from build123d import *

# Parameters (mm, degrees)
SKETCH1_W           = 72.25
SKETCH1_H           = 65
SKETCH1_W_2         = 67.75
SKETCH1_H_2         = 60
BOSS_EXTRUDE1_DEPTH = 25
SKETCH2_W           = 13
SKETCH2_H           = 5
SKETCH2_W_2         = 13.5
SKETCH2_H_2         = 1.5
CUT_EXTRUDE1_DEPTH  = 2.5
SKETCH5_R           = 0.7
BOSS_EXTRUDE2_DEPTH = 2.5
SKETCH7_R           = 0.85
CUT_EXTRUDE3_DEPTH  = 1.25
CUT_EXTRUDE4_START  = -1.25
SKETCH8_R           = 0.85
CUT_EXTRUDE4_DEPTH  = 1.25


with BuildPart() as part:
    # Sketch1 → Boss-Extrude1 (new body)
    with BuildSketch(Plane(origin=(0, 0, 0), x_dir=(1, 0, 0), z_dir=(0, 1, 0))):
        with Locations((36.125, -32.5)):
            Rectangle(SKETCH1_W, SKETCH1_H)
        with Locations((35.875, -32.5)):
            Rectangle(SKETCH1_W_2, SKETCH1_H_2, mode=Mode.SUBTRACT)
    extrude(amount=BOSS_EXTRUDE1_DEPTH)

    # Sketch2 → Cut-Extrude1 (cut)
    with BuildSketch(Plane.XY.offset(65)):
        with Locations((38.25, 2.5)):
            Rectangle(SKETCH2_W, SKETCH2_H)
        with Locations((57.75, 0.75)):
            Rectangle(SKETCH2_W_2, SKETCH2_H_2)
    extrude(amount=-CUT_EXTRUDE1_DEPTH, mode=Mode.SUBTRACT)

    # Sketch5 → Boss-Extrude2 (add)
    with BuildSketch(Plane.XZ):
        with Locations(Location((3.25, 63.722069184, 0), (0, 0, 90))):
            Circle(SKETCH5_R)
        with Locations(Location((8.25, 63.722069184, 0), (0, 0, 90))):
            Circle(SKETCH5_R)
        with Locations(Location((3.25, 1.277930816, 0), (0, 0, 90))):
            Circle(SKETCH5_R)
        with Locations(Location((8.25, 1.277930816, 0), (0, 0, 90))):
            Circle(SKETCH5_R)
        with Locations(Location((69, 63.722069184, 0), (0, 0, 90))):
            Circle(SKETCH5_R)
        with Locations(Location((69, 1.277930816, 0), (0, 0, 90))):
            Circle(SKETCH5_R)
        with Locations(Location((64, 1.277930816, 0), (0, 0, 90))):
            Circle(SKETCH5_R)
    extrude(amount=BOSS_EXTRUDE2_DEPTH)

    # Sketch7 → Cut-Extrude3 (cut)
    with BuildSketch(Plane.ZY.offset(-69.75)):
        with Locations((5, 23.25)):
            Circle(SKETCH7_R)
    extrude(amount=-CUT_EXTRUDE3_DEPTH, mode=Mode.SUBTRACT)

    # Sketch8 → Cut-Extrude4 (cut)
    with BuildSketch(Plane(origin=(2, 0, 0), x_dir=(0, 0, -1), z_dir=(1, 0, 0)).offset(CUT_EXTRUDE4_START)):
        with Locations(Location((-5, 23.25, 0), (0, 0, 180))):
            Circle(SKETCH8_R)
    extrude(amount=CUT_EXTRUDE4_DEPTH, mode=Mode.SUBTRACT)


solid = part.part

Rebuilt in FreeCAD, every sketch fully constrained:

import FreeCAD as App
import Part
import Sketcher
Q = App.Units.Quantity


def add_polygon(sketch, points):
    """Adds a closed chain of lines whose ends are joined by coincident constraints."""
    first, n = sketch.GeometryCount, len(points)
    for a, b in zip(points, points[1:] + points[:1]):
        sketch.addGeometry(Part.LineSegment(App.Vector(*a, 0), App.Vector(*b, 0)), False)
    for i in range(n):
        sketch.addConstraint(Sketcher.Constraint("Coincident", first + i, 2, first + (i + 1) % n, 1))

doc = App.newDocument("Part")
params = doc.addObject("Spreadsheet::Sheet", "Params")
for row, (alias, value) in enumerate([
    ("sketch1_height", "65 mm"),
    ("sketch1_height2", "60 mm"),
    ("sketch1_width", "72.25 mm"),
    ("sketch1_width2", "67.75 mm"),
    ("pad1_length", "25 mm"),
    ("sketch2_width", "13 mm"),
    ("sketch2_height", "5 mm"),
    ("sketch2_width2", "13.5 mm"),
    ("sketch2_height2", "1.5 mm"),
    ("pocket1_length", "2.5 mm"),
    ("sketch3_diameter", "1.4 mm"),
    ("pad2_length", "2.5 mm"),
    ("sketch4_diameter", "1.7 mm"),
    ("pocket2_length", "1.25 mm"),
    ("sketch5_diameter", "1.7 mm"),
    ("pocket3_length", "1.25 mm"),
], start=1):
    params.set(f"A{row}", alias)
    params.set(f"B{row}", "=" + value)
    params.setAlias(f"B{row}", alias)

body = doc.addObject("PartDesign::Body", "Body")

sketch1 = doc.addObject("Sketcher::SketchObject", "Sketch")
body.addObject(sketch1)
sketch1.AttachmentSupport = (doc.XZ_Plane, [""])
sketch1.MapMode = "FlatFace"
add_polygon(sketch1, [(0, 0), (0, 65), (72, 65), (72, 0)])
add_polygon(sketch1, [(70, 62), (2, 62), (2, 2), (70, 2)])
sketch1.addConstraint(Sketcher.Constraint("Vertical", 0))
sketch1.addConstraint(Sketcher.Constraint("Horizontal", 1))
sketch1.addConstraint(Sketcher.Constraint("Vertical", 2))
sketch1.addConstraint(Sketcher.Constraint("Horizontal", 3))
sketch1.addConstraint(Sketcher.Constraint("Horizontal", 4))
sketch1.addConstraint(Sketcher.Constraint("Vertical", 5))
sketch1.addConstraint(Sketcher.Constraint("Horizontal", 6))
sketch1.addConstraint(Sketcher.Constraint("Vertical", 7))
sketch1.addConstraint(Sketcher.Constraint("Coincident", 3, 2, -1, 1))
sketch1.addConstraint(Sketcher.Constraint("DistanceY", 0, 1, 0, 2, Q("65 mm")))
sketch1.addConstraint(Sketcher.Constraint("DistanceY", 5, 2, 5, 1, Q("60 mm")))
sketch1.addConstraint(Sketcher.Constraint("DistanceX", -1, 1, 4, 2, Q("2 mm")))
sketch1.addConstraint(Sketcher.Constraint("DistanceX", 1, 1, 1, 2, Q("72.25 mm")))
sketch1.addConstraint(Sketcher.Constraint("DistanceX", 4, 2, 4, 1, Q("67.75 mm")))
sketch1.addConstraint(Sketcher.Constraint("DistanceY", -1, 1, 4, 2, Q("62.5 mm")))
sketch1.setExpression("Constraints[17]", "Params.sketch1_height")
sketch1.setExpression("Constraints[18]", "Params.sketch1_height2")
sketch1.setExpression("Constraints[20]", "Params.sketch1_width")
sketch1.setExpression("Constraints[21]", "Params.sketch1_width2")
pad1 = doc.addObject("PartDesign::Pad", "Pad")
body.addObject(pad1)
pad1.Profile = sketch1
pad1.setExpression("Length", "Params.pad1_length")
pad1.Reversed = True

sketch2 = doc.addObject("Sketcher::SketchObject", "Sketch001")
body.addObject(sketch2)
sketch2.AttachmentSupport = (doc.XY_Plane, [""])
sketch2.MapMode = "FlatFace"
sketch2.AttachmentOffset = App.Placement(App.Vector(0, 0, 65), App.Rotation())
add_polygon(sketch2, [(31.8, 5), (31.8, 0), (44.8, 0), (44.8, 5)])
add_polygon(sketch2, [(51, 1.5), (51, 0), (64.5, 0), (64.5, 1.5)])
sketch2.addConstraint(Sketcher.Constraint("Vertical", 0))
sketch2.addConstraint(Sketcher.Constraint("Horizontal", 1))
sketch2.addConstraint(Sketcher.Constraint("Vertical", 2))
sketch2.addConstraint(Sketcher.Constraint("Horizontal", 3))
sketch2.addConstraint(Sketcher.Constraint("Vertical", 4))
sketch2.addConstraint(Sketcher.Constraint("Horizontal", 5))
sketch2.addConstraint(Sketcher.Constraint("Vertical", 6))
sketch2.addConstraint(Sketcher.Constraint("Horizontal", 7))
sketch2.addConstraint(Sketcher.Constraint("PointOnObject", 0, 2, -1))
sketch2.addConstraint(Sketcher.Constraint("PointOnObject", 4, 2, -1))
sketch2.addConstraint(Sketcher.Constraint("DistanceX", 1, 1, 1, 2, Q("13 mm")))
sketch2.addConstraint(Sketcher.Constraint("DistanceY", 0, 2, 0, 1, Q("5 mm")))
sketch2.addConstraint(Sketcher.Constraint("DistanceX", 5, 1, 5, 2, Q("13.5 mm")))
sketch2.addConstraint(Sketcher.Constraint("DistanceY", 4, 2, 4, 1, Q("1.5 mm")))
sketch2.addConstraint(Sketcher.Constraint("DistanceX", -1, 1, 4, 2, Q("51 mm")))
sketch2.addConstraint(Sketcher.Constraint("DistanceX", -1, 1, 0, 2, Q("31.75 mm")))
sketch2.setExpression("Constraints[18]", "Params.sketch2_width")
sketch2.setExpression("Constraints[19]", "Params.sketch2_height")
sketch2.setExpression("Constraints[20]", "Params.sketch2_width2")
sketch2.setExpression("Constraints[21]", "Params.sketch2_height2")
pocket1 = doc.addObject("PartDesign::Pocket", "Pocket")
body.addObject(pocket1)
pocket1.Profile = sketch2
pocket1.setExpression("Length", "Params.pocket1_length")

sketch3 = doc.addObject("Sketcher::SketchObject", "Sketch002")
body.addObject(sketch3)
sketch3.AttachmentSupport = (doc.XZ_Plane, [""])
sketch3.MapMode = "FlatFace"
sketch3.addGeometry(Part.Circle(App.Vector(3.2, 63.7, 0), App.Vector(0, 0, 1), 0.7), False)
sketch3.addGeometry(Part.Circle(App.Vector(8.2, 63.7, 0), App.Vector(0, 0, 1), 0.7), False)
sketch3.addGeometry(Part.Circle(App.Vector(3.2, 1.3, 0), App.Vector(0, 0, 1), 0.7), False)
sketch3.addGeometry(Part.Circle(App.Vector(8.2, 1.3, 0), App.Vector(0, 0, 1), 0.7), False)
sketch3.addGeometry(Part.Circle(App.Vector(69, 63.7, 0), App.Vector(0, 0, 1), 0.7), False)
sketch3.addGeometry(Part.Circle(App.Vector(69, 1.3, 0), App.Vector(0, 0, 1), 0.7), False)
sketch3.addGeometry(Part.Circle(App.Vector(64, 1.3, 0), App.Vector(0, 0, 1), 0.7), False)
sketch3.addConstraint(Sketcher.Constraint("Equal", 0, 1))
sketch3.addConstraint(Sketcher.Constraint("Equal", 1, 2))
sketch3.addConstraint(Sketcher.Constraint("Equal", 2, 3))
sketch3.addConstraint(Sketcher.Constraint("Equal", 3, 4))
sketch3.addConstraint(Sketcher.Constraint("Equal", 4, 5))
sketch3.addConstraint(Sketcher.Constraint("Equal", 5, 6))
sketch3.addConstraint(Sketcher.Constraint("Horizontal", 0, 3, 1, 3))
sketch3.addConstraint(Sketcher.Constraint("Horizontal", 2, 3, 3, 3))
sketch3.addConstraint(Sketcher.Constraint("Horizontal", 1, 3, 4, 3))
sketch3.addConstraint(Sketcher.Constraint("Horizontal", 3, 3, 5, 3))
sketch3.addConstraint(Sketcher.Constraint("Horizontal", 5, 3, 6, 3))
sketch3.addConstraint(Sketcher.Constraint("Vertical", 0, 3, 2, 3))
sketch3.addConstraint(Sketcher.Constraint("Vertical", 1, 3, 3, 3))
sketch3.addConstraint(Sketcher.Constraint("Vertical", 4, 3, 5, 3))
sketch3.addConstraint(Sketcher.Constraint("Diameter", 0, Q("1.4 mm")))
sketch3.addConstraint(Sketcher.Constraint("DistanceX", -1, 1, 4, 3, Q("69 mm")))
sketch3.addConstraint(Sketcher.Constraint("DistanceX", -1, 1, 6, 3, Q("64 mm")))
sketch3.addConstraint(Sketcher.Constraint("DistanceX", 0, 3, 1, 3, Q("5 mm")))
sketch3.addConstraint(Sketcher.Constraint("DistanceX", -1, 1, 0, 3, Q("3.25 mm")))
sketch3.addConstraint(Sketcher.Constraint("DistanceY", -1, 1, 0, 3, Q("63.722069 mm")))
sketch3.addConstraint(Sketcher.Constraint("DistanceY", -1, 1, 2, 3, Q("1.277931 mm")))
sketch3.setExpression("Constraints[14]", "Params.sketch3_diameter")
pad2 = doc.addObject("PartDesign::Pad", "Pad001")
body.addObject(pad2)
pad2.Profile = sketch3
pad2.setExpression("Length", "Params.pad2_length")

sketch4 = doc.addObject("Sketcher::SketchObject", "Sketch003")
body.addObject(sketch4)
sketch4.AttachmentSupport = (doc.YZ_Plane, [""])
sketch4.MapMode = "FlatFace"
sketch4.AttachmentOffset = App.Placement(App.Vector(0, 0, 69.75), App.Rotation())
sketch4.addGeometry(Part.Circle(App.Vector(23.2, 5, 0), App.Vector(0, 0, 1), 0.8), False)
sketch4.addConstraint(Sketcher.Constraint("Diameter", 0, Q("1.7 mm")))
sketch4.addConstraint(Sketcher.Constraint("DistanceY", -1, 1, 0, 3, Q("5 mm")))
sketch4.addConstraint(Sketcher.Constraint("DistanceX", -1, 1, 0, 3, Q("23.25 mm")))
sketch4.setExpression("Constraints[0]", "Params.sketch4_diameter")
pocket2 = doc.addObject("PartDesign::Pocket", "Pocket001")
body.addObject(pocket2)
pocket2.Profile = sketch4
pocket2.setExpression("Length", "Params.pocket2_length")
pocket2.Reversed = True

sketch5 = doc.addObject("Sketcher::SketchObject", "Sketch004")
body.addObject(sketch5)
sketch5.AttachmentSupport = (doc.YZ_Plane, [""])
sketch5.MapMode = "FlatFace"
sketch5.AttachmentOffset = App.Placement(App.Vector(0, 0, 0.75), App.Rotation())
sketch5.addGeometry(Part.Circle(App.Vector(23.2, 5, 0), App.Vector(0, 0, 1), 0.8), False)
sketch5.addConstraint(Sketcher.Constraint("Diameter", 0, Q("1.7 mm")))
sketch5.addConstraint(Sketcher.Constraint("DistanceY", -1, 1, 0, 3, Q("5 mm")))
sketch5.addConstraint(Sketcher.Constraint("DistanceX", -1, 1, 0, 3, Q("23.25 mm")))
sketch5.setExpression("Constraints[0]", "Params.sketch5_diameter")
pocket3 = doc.addObject("PartDesign::Pocket", "Pocket002")
body.addObject(pocket3)
pocket3.Profile = sketch5
pocket3.setExpression("Length", "Params.pocket3_length")
pocket3.Reversed = True

doc.recompute()
